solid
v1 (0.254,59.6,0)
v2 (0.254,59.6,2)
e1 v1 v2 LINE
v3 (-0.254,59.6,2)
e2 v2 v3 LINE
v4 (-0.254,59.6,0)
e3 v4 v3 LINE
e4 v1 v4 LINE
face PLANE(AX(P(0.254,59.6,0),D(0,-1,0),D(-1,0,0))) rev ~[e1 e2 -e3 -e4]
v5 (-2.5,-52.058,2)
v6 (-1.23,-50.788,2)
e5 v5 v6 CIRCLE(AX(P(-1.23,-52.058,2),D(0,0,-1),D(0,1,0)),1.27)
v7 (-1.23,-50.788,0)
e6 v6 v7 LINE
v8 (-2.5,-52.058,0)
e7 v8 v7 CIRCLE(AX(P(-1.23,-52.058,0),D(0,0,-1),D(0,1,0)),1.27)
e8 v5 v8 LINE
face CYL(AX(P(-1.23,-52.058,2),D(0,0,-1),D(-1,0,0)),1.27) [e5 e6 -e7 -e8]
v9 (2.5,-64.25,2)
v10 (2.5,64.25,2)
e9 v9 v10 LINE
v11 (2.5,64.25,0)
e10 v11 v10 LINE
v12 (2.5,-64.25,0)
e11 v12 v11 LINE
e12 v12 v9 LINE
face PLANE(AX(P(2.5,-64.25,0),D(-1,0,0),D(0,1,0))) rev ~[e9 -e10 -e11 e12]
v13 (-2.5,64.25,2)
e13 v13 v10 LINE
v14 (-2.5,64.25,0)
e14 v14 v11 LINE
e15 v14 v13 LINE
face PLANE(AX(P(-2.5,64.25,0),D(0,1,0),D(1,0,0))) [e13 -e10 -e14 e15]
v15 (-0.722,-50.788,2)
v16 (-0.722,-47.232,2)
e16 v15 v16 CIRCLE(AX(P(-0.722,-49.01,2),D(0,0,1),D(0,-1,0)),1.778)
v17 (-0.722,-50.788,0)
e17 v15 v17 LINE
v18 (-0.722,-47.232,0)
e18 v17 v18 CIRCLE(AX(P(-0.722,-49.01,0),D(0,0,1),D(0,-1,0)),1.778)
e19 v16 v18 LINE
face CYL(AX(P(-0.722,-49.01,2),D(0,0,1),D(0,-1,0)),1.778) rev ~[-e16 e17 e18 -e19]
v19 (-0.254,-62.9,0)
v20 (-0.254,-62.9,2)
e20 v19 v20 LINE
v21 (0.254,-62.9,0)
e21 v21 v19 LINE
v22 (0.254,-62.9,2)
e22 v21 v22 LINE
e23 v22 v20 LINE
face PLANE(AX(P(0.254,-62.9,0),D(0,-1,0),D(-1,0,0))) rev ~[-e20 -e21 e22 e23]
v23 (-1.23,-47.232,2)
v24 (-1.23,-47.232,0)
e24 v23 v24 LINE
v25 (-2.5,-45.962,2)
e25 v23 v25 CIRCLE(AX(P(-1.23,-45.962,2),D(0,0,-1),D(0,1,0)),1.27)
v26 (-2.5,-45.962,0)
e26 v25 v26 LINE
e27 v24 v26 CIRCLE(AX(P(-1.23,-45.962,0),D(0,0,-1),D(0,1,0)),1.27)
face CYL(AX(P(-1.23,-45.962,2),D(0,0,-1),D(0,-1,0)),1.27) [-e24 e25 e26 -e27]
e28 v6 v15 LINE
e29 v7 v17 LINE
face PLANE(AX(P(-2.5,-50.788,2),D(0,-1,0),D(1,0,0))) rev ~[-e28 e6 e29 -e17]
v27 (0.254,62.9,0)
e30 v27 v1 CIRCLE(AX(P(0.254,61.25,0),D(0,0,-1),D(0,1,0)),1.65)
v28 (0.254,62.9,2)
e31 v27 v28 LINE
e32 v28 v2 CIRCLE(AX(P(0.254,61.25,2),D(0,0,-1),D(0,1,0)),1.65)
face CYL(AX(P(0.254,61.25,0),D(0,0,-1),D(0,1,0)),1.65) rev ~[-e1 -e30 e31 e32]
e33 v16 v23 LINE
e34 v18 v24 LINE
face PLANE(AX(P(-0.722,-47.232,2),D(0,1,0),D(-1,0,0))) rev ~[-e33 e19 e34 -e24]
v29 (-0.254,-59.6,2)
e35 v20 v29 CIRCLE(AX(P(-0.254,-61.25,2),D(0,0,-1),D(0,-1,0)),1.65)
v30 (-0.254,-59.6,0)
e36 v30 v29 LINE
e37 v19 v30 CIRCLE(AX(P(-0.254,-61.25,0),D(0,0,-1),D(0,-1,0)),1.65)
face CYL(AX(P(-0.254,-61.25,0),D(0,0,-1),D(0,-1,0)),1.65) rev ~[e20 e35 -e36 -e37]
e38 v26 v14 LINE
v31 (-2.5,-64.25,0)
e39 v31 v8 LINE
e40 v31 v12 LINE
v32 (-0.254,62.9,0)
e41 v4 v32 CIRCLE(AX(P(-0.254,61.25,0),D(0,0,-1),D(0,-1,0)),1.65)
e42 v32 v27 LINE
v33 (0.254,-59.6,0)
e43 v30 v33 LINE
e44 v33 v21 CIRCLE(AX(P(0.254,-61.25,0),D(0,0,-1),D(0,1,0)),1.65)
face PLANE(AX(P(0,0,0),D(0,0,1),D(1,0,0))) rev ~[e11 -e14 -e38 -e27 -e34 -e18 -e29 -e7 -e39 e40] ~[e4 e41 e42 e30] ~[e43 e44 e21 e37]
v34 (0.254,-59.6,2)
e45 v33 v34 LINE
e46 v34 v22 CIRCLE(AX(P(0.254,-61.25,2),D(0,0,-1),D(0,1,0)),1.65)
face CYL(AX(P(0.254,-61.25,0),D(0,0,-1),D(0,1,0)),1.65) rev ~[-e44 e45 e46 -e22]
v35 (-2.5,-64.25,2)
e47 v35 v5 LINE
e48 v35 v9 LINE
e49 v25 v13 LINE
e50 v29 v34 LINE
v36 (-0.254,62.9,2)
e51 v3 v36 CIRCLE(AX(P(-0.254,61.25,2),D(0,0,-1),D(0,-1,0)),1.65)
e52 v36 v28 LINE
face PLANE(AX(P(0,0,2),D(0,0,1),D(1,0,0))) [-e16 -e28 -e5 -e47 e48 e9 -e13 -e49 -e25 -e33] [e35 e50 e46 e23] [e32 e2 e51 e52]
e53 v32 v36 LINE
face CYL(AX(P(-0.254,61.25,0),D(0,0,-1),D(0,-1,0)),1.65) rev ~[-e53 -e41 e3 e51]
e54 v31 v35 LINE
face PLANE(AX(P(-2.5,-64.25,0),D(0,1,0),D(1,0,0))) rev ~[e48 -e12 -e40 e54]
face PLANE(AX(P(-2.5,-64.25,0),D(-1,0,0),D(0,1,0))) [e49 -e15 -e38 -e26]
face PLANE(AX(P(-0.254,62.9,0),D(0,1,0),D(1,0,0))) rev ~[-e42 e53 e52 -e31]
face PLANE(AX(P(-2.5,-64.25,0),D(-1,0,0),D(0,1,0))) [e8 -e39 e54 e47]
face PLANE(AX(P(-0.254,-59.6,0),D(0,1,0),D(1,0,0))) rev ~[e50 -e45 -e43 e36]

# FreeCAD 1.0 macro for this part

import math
import FreeCAD as App
import Part
import Sketcher
from FreeCAD import Vector
Q = App.Units.Quantity


def edges_at(feature, points):
    """Names of the edges that pass closest to the given points."""
    edges = feature.Shape.Edges
    near = lambda p: min(range(len(edges)), key=lambda i: edges[i].distToShape(Part.Vertex(*p))[0])
    return sorted({f"Edge{near(p) + 1}" for p in points})


def add_polygon(sketch, points):
    """Adds a closed chain of lines whose ends are joined by coincident constraints."""
    first, n = sketch.GeometryCount, len(points)
    for a, b in zip(points, points[1:] + points[:1]):
        sketch.addGeometry(Part.LineSegment(App.Vector(*a, 0), App.Vector(*b, 0)), False)
    for i in range(n):
        sketch.addConstraint(Sketcher.Constraint("Coincident", first + i, 2, first + (i + 1) % n, 1))

doc = App.newDocument("Part")
params = doc.addObject("Spreadsheet::Sheet", "Params")
for row, (alias, value) in enumerate([
    ("sketch1_width", "0.02 in"),
    ("pad1_length", "2 mm"),
    ("sketch2_radius", "0.07 in"),
    ("sketch2_width", "0.07 in"),
    ("pocket1_length", "0.1 in"),
    ("fillet_radius", "0.05 in"),
], start=1):
    params.set(f"A{row}", alias)
    params.set(f"B{row}", "=" + value)
    params.setAlias(f"B{row}", alias)

body = doc.addObject("PartDesign::Body", "Body")

# Sketch on XY plane
sketch1 = doc.addObject("Sketcher::SketchObject", "Sketch")
body.addObject(sketch1)
sketch1.AttachmentSupport = (doc.XY_Plane, [""])
sketch1.MapMode = "FlatFace"
add_polygon(sketch1, [(-2.5, 64.2), (-2.5, -64.2), (2.5, -64.2), (2.5, 64.2)])  # lines 0-3
sketch1.addGeometry(Part.ArcOfCircle(Part.Circle(Vector(-0.3, -61.2, 0), Vector(0, 0, 1), 1.6), math.radians(90), math.radians(270)), False)  # 4
sketch1.addGeometry(Part.LineSegment(Vector(-0.3, -59.6, 0), Vector(0.3, -59.6, 0)), False)  # 5
sketch1.addGeometry(Part.ArcOfCircle(Part.Circle(Vector(0.3, -61.2, 0), Vector(0, 0, 1), 1.6), math.radians(-90), math.radians(90)), False)  # 6
sketch1.addGeometry(Part.LineSegment(Vector(0.3, -62.9, 0), Vector(-0.3, -62.9, 0)), False)  # 7
sketch1.addGeometry(Part.ArcOfCircle(Part.Circle(Vector(-0.3, 61.2, 0), Vector(0, 0, 1), 1.6), math.radians(90), math.radians(270)), False)  # 8
sketch1.addGeometry(Part.LineSegment(Vector(-0.3, 62.9, 0), Vector(0.3, 62.9, 0)), False)  # 9
sketch1.addGeometry(Part.ArcOfCircle(Part.Circle(Vector(0.3, 61.2, 0), Vector(0, 0, 1), 1.6), math.radians(-90), math.radians(90)), False)  # 10
sketch1.addGeometry(Part.LineSegment(Vector(0.3, 59.6, 0), Vector(-0.3, 59.6, 0)), False)  # 11
sketch1.addConstraint([
    Sketcher.Constraint("Tangent", 4, 1, 5, 1),
    Sketcher.Constraint("Tangent", 5, 2, 6, 2),
    Sketcher.Constraint("Tangent", 6, 1, 7, 1),
    Sketcher.Constraint("Tangent", 7, 2, 4, 2),
    Sketcher.Constraint("Tangent", 8, 1, 9, 1),
    Sketcher.Constraint("Tangent", 9, 2, 10, 2),
    Sketcher.Constraint("Tangent", 10, 1, 11, 1),
    Sketcher.Constraint("Tangent", 11, 2, 8, 2),
    Sketcher.Constraint("Vertical", 0),
    Sketcher.Constraint("Horizontal", 1),
    Sketcher.Constraint("Vertical", 2),
    Sketcher.Constraint("Horizontal", 3),
    Sketcher.Constraint("Horizontal", 5),
    Sketcher.Constraint("Horizontal", 7),
    Sketcher.Constraint("Horizontal", 9),
    Sketcher.Constraint("Horizontal", 11),
    Sketcher.Constraint("Equal", 6, 8),
    Sketcher.Constraint("Symmetric", 6, 3, 8, 3, -1, 1),
    Sketcher.Constraint("Symmetric", 0, 2, 2, 2, -1, 1),
    Sketcher.Constraint("Vertical", 4, 3, 8, 3),
    Sketcher.Constraint("Vertical", 6, 3, 10, 3),
    Sketcher.Constraint("DistanceX", 5, 1, 5, 2, Q("0.02 in")),
    Sketcher.Constraint("Radius", 4, Q("1.65 mm")),
    Sketcher.Constraint("DistanceX", 1, 1, 1, 2, Q("5 mm")),
    Sketcher.Constraint("DistanceY", 0, 2, 0, 1, Q("128.5 mm")),
    Sketcher.Constraint("DistanceY", 4, 3, -1, 1, Q("61.25 mm")),
])
sketch1.setExpression("Constraints[25]", "Params.sketch1_width")
pad1 = doc.addObject("PartDesign::Pad", "Pad")
body.addObject(pad1)
pad1.Profile = sketch1
pad1.setExpression("Length", "Params.pad1_length")

# Sketch on XY plane
sketch2 = doc.addObject("Sketcher::SketchObject", "Sketch001")
body.addObject(sketch2)
sketch2.AttachmentSupport = (doc.XY_Plane, [""])
sketch2.MapMode = "FlatFace"
sketch2.AttachmentOffset = App.Placement(Vector(0, 0, 2), App.Rotation())
sketch2.addGeometry([
    Part.LineSegment(Vector(-0.7, -47.2, 0), Vector(-2.5, -47.2, 0)),
    Part.LineSegment(Vector(-2.5, -47.2, 0), Vector(-2.5, -50.8, 0)),
    Part.LineSegment(Vector(-2.5, -50.8, 0), Vector(-0.7, -50.8, 0)),
    Part.ArcOfCircle(Part.Circle(Vector(-0.7, -49, 0), Vector(0, 0, 1), 1.8), math.radians(-90), math.radians(90)),
], False)
sketch2.addConstraint([
    Sketcher.Constraint("Coincident", 0, 2, 1, 1),
    Sketcher.Constraint("Coincident", 1, 2, 2, 1),
    Sketcher.Constraint("Tangent", 2, 2, 3, 1),
    Sketcher.Constraint("Tangent", 3, 2, 0, 1),
    Sketcher.Constraint("Horizontal", 0),
    Sketcher.Constraint("Vertical", 1),
    Sketcher.Constraint("Horizontal", 2),
    Sketcher.Constraint("Radius", 3, Q("0.07 in")),
    Sketcher.Constraint("DistanceX", 0, 2, 0, 1, Q("0.07 in")),
    Sketcher.Constraint("DistanceX", 3, 3, -1, 1, Q("0.722 mm")),
    Sketcher.Constraint("DistanceY", 3, 3, -1, 1, Q("49.01 mm")),
])
sketch2.setExpression("Constraints[7]", "Params.sketch2_radius")
sketch2.setExpression("Constraints[8]", "Params.sketch2_width")
pocket1 = doc.addObject("PartDesign::Pocket", "Pocket")
body.addObject(pocket1)
pocket1.Profile = sketch2
pocket1.setExpression("Length", "Params.pocket1_length")
doc.recompute()

fillet = doc.addObject("PartDesign::Fillet", "Fillet")
body.addObject(fillet)
fillet.Base = (pocket1, edges_at(pocket1, [(-2.5, -47.232, 1), (-2.5, -50.788, 1)]))
fillet.setExpression("Radius", "Params.fillet_radius")

doc.recompute()
